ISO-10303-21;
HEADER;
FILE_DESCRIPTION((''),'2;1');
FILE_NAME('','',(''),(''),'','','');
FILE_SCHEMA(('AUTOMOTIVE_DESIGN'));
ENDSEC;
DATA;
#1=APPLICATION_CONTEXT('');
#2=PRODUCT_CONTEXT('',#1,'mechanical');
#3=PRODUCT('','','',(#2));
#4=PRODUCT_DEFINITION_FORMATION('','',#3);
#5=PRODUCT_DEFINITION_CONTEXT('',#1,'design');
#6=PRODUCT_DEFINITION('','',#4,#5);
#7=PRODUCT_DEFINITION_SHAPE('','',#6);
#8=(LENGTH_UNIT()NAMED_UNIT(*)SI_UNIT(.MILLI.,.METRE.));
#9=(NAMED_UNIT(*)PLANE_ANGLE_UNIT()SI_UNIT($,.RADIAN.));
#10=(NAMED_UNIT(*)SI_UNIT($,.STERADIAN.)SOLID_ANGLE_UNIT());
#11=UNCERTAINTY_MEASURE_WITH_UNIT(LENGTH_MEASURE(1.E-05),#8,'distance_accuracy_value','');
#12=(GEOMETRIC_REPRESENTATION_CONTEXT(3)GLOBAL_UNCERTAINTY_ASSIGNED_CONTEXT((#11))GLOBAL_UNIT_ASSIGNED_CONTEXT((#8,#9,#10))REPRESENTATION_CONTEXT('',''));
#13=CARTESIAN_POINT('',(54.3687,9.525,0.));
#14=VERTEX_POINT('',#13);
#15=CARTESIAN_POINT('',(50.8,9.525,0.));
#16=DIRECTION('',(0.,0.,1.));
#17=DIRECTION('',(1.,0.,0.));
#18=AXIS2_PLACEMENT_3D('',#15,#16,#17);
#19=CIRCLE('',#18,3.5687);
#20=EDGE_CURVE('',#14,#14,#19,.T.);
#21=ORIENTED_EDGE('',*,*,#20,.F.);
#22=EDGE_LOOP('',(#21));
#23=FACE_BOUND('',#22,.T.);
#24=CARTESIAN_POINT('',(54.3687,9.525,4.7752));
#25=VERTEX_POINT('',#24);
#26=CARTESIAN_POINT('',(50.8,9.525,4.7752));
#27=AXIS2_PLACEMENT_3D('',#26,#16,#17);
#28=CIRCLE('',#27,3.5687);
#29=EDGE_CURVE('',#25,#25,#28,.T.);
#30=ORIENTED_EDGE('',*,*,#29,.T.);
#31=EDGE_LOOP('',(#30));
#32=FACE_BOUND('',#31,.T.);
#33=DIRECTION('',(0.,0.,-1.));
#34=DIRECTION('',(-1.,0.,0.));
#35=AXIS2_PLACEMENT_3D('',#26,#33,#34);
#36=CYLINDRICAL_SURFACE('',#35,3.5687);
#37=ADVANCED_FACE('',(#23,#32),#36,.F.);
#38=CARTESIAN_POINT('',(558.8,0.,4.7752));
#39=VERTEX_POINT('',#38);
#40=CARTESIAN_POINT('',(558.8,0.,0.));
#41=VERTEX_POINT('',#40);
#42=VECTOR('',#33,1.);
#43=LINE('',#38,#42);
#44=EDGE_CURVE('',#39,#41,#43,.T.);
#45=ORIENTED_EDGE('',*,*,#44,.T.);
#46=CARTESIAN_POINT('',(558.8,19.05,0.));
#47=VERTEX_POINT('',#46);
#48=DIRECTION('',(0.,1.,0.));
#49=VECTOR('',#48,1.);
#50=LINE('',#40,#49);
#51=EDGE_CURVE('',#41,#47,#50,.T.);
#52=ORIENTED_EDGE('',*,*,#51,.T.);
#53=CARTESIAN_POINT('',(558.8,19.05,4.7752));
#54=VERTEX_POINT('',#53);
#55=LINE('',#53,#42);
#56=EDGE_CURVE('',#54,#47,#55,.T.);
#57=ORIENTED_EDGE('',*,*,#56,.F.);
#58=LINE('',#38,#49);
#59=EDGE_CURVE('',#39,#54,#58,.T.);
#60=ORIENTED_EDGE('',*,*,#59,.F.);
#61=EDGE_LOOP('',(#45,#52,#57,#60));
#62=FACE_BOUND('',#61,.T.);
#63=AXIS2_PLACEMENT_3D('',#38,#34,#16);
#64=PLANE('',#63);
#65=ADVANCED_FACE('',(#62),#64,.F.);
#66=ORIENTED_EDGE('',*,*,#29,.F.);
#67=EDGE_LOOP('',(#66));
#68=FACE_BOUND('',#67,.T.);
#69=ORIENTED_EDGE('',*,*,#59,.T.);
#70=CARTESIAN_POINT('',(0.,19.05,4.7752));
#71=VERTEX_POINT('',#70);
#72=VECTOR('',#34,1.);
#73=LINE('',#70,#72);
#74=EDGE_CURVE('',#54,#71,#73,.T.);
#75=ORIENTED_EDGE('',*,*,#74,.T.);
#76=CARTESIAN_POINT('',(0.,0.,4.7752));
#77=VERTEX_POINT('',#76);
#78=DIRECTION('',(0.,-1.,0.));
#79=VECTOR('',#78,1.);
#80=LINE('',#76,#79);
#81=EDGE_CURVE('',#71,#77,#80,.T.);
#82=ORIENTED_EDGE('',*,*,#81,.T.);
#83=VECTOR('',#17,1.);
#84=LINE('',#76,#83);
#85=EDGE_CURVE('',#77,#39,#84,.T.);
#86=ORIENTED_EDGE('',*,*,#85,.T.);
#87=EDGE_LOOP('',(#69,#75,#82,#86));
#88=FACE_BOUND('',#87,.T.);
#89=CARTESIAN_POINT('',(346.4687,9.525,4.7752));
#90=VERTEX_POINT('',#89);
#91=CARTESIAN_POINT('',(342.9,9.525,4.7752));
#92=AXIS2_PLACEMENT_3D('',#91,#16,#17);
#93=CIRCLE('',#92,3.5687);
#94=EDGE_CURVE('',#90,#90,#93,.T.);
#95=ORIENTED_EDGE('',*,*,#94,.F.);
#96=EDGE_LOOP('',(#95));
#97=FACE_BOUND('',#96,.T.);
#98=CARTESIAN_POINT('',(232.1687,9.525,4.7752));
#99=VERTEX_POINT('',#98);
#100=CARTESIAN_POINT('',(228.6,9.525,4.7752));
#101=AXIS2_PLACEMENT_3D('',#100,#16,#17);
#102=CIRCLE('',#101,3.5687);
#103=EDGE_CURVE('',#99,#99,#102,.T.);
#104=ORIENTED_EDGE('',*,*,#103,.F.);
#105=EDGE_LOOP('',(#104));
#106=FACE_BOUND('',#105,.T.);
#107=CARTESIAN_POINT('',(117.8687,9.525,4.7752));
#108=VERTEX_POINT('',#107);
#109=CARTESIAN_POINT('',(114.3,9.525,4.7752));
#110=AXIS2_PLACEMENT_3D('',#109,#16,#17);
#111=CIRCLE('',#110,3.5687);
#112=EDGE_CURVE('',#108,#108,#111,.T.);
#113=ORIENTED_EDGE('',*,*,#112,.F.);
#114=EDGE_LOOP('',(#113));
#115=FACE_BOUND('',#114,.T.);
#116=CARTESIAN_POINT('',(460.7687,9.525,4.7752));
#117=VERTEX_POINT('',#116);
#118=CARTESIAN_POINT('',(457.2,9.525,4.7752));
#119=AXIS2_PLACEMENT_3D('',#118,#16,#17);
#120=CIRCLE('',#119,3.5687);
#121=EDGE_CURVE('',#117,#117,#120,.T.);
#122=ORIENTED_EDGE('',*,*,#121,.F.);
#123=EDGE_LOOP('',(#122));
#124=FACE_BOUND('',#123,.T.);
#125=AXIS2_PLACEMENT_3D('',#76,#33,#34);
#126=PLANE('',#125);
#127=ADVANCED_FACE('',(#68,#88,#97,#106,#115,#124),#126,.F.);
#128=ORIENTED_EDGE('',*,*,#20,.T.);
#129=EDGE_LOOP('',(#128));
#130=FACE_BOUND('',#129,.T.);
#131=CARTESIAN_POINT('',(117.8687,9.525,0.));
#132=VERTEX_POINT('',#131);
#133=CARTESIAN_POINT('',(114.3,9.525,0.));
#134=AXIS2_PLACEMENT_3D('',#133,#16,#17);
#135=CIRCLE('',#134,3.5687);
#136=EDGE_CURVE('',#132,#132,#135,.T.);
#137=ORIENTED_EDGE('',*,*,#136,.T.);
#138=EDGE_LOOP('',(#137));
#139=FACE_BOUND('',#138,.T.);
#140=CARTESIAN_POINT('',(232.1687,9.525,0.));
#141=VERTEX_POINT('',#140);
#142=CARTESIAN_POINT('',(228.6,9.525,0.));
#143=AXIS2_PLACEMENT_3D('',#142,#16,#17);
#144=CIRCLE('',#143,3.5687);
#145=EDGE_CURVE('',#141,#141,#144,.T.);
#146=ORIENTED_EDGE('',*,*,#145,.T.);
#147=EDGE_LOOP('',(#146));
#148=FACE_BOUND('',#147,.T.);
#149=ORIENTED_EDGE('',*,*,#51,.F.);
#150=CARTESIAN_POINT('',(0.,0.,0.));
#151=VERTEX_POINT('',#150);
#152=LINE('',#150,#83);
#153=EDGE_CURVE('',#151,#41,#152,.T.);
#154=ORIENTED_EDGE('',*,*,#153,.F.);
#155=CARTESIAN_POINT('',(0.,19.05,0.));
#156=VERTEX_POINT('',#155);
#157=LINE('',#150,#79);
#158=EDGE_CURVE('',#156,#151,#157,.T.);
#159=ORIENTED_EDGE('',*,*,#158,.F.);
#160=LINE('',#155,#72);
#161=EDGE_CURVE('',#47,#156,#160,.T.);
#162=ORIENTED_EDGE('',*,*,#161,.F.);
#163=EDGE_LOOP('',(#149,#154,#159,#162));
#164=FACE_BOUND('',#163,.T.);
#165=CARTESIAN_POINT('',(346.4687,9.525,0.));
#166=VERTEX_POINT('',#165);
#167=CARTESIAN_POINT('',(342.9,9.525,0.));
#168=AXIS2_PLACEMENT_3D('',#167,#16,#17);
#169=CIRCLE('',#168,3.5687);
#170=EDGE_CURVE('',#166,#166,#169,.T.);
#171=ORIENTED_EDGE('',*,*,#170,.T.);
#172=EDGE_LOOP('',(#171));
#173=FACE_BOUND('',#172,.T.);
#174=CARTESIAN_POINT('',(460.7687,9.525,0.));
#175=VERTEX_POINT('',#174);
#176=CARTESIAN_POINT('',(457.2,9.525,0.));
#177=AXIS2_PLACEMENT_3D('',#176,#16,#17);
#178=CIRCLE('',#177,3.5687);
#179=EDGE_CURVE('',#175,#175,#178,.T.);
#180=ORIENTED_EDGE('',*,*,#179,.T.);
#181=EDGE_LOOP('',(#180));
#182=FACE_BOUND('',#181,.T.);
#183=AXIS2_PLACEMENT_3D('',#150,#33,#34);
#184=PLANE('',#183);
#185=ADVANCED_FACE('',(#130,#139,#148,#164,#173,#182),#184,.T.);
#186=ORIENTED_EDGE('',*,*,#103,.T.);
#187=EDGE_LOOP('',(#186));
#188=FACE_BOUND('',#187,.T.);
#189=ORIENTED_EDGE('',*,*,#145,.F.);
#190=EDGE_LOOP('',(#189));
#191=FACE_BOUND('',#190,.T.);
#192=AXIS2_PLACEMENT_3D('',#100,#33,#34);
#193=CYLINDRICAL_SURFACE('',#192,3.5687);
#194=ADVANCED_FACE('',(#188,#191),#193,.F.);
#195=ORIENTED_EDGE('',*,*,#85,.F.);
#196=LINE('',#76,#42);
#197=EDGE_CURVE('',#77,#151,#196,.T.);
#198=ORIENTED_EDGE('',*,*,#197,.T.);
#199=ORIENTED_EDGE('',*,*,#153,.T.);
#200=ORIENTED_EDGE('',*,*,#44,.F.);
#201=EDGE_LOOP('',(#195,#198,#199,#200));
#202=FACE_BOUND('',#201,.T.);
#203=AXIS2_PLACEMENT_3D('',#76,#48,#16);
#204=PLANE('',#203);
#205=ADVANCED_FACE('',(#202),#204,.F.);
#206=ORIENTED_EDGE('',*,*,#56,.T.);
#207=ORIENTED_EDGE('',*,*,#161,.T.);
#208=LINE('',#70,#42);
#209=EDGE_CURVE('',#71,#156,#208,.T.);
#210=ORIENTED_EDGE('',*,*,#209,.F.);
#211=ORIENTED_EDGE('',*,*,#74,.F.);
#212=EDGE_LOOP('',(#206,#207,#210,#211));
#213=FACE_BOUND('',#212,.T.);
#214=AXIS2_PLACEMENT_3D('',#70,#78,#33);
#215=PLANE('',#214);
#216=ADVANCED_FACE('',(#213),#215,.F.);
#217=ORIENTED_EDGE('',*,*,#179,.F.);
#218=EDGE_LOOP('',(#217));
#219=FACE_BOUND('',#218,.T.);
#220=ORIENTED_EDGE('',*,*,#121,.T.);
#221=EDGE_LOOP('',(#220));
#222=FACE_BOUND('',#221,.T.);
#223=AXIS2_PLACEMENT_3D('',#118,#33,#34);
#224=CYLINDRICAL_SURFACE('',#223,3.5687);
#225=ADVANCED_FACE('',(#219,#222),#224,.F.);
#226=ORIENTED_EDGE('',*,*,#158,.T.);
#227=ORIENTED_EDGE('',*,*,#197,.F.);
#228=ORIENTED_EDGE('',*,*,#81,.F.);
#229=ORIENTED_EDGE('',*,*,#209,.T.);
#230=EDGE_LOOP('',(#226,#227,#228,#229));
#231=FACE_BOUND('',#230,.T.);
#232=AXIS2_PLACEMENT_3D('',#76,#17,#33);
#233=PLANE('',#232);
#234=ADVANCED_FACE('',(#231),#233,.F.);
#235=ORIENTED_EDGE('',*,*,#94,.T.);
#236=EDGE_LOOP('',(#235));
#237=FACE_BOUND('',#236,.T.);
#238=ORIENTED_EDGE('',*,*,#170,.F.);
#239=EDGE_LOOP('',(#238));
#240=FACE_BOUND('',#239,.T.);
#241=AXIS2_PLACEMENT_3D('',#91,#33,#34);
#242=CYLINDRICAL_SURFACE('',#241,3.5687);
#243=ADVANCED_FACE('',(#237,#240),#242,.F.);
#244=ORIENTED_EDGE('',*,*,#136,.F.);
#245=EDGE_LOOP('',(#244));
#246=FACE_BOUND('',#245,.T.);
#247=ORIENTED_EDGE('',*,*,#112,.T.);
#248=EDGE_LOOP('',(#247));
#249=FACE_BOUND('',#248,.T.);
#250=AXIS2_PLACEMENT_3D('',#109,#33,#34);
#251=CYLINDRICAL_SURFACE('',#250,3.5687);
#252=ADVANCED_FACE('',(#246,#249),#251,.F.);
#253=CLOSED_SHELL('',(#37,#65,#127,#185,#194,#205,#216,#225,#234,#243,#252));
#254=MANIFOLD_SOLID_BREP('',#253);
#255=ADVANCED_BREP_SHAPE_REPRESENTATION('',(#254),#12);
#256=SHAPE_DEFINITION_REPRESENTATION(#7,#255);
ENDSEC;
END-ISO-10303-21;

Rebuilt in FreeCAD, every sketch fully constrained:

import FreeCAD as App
import Part
import Sketcher

V = App.Vector
Q = App.Units.Quantity

doc = App.newDocument("Part")
body = doc.addObject("PartDesign::Body", "Body")

# Sketch on XY plane
sketch1 = body.newObject("Sketcher::SketchObject", "Sketch")
sketch1.AttachmentSupport = (doc.getObject("XY_Plane"), [""])
sketch1.MapMode = "FlatFace"
sketch1.addGeometry(Part.LineSegment(V(0, 19, 0), V(0, 0, 0)), False)
sketch1.addGeometry(Part.LineSegment(V(0, 0, 0), V(559, 0, 0)), False)
sketch1.addGeometry(Part.LineSegment(V(559, 0, 0), V(559, 19, 0)), False)
sketch1.addGeometry(Part.LineSegment(V(559, 19, 0), V(0, 19, 0)), False)
sketch1.addConstraint(Sketcher.Constraint("Coincident", 0, 2, 1, 1))
sketch1.addConstraint(Sketcher.Constraint("Coincident", 1, 2, 2, 1))
sketch1.addConstraint(Sketcher.Constraint("Coincident", 2, 2, 3, 1))
sketch1.addConstraint(Sketcher.Constraint("Coincident", 3, 2, 0, 1))
sketch1.addConstraint(Sketcher.Constraint("Vertical", 0))
sketch1.addConstraint(Sketcher.Constraint("Horizontal", 1))
sketch1.addConstraint(Sketcher.Constraint("Vertical", 2))
sketch1.addConstraint(Sketcher.Constraint("Horizontal", 3))
sketch1.addConstraint(Sketcher.Constraint("Coincident", 0, 2, -1, 1))
sketch1.addConstraint(Sketcher.Constraint("DistanceX", 1, 1, 1, 2, Q("22 in")))
sketch1.addConstraint(Sketcher.Constraint("DistanceY", 0, 2, 0, 1, Q("0.75 in")))
pad1 = body.newObject("PartDesign::Pad", "Pad")
pad1.Profile = sketch1
pad1.Length = Q("0.188 in")

# Sketch on XY plane
sketch2 = body.newObject("Sketcher::SketchObject", "Sketch001")
sketch2.AttachmentSupport = (doc.getObject("XY_Plane"), [""])
sketch2.MapMode = "FlatFace"
sketch2.addGeometry(Part.Circle(V(50.8, 9.5, 0), V(0, 0, 1), 3.6), False)
sketch2.addGeometry(Part.Circle(V(114.3, 9.5, 0), V(0, 0, 1), 3.6), False)
sketch2.addGeometry(Part.Circle(V(228.6, 9.5, 0), V(0, 0, 1), 3.6), False)
sketch2.addGeometry(Part.Circle(V(342.9, 9.5, 0), V(0, 0, 1), 3.6), False)
sketch2.addGeometry(Part.Circle(V(457.2, 9.5, 0), V(0, 0, 1), 3.6), False)
sketch2.addConstraint(Sketcher.Constraint("Equal", 0, 1))
sketch2.addConstraint(Sketcher.Constraint("Equal", 1, 2))
sketch2.addConstraint(Sketcher.Constraint("Equal", 2, 3))
sketch2.addConstraint(Sketcher.Constraint("Equal", 3, 4))
sketch2.addConstraint(Sketcher.Constraint("Horizontal", 0, 3, 1, 3))
sketch2.addConstraint(Sketcher.Constraint("Horizontal", 1, 3, 2, 3))
sketch2.addConstraint(Sketcher.Constraint("Horizontal", 2, 3, 3, 3))
sketch2.addConstraint(Sketcher.Constraint("Horizontal", 3, 3, 4, 3))
sketch2.addConstraint(Sketcher.Constraint("Diameter", 0, Q("0.281 in")))
sketch2.addConstraint(Sketcher.Constraint("DistanceX", -1, 1, 0, 3, Q("2 in")))
sketch2.addConstraint(Sketcher.Constraint("DistanceX", -1, 1, 2, 3, Q("9 in")))
sketch2.addConstraint(Sketcher.Constraint("DistanceX", -1, 1, 4, 3, Q("18 in")))
sketch2.addConstraint(Sketcher.Constraint("DistanceX", 1, 3, 3, 3, Q("9 in")))
sketch2.addConstraint(Sketcher.Constraint("DistanceX", -1, 1, 1, 3, Q("4.5 in")))
sketch2.addConstraint(Sketcher.Constraint("DistanceY", -1, 1, 0, 3, Q("0.375 in")))
pocket1 = body.newObject("PartDesign::Pocket", "Pocket")
pocket1.Profile = sketch2
pocket1.Type = "ThroughAll"
pocket1.Reversed = True

doc.recompute()
